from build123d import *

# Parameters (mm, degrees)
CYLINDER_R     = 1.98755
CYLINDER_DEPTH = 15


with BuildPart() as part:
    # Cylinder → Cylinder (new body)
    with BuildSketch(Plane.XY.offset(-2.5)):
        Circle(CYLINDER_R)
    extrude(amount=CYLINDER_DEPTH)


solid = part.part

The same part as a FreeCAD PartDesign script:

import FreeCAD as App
import Part
import Sketcher

doc = App.newDocument("Part")
params = doc.addObject("Spreadsheet::Sheet", "Params")
for row, (alias, value) in enumerate([
    ("pad1_length", "15 mm"),
], start=1):
    params.set(f"A{row}", alias)
    params.set(f"B{row}", "=" + value)
    params.setAlias(f"B{row}", alias)

body = doc.addObject("PartDesign::Body", "Body")

sketch1 = doc.addObject("Sketcher::SketchObject", "Sketch")
body.addObject(sketch1)
sketch1.AttachmentSupport = (doc.XY_Plane, [""])
sketch1.MapMode = "FlatFace"
sketch1.AttachmentOffset = App.Placement(App.Vector(0, 0, -2.5), App.Rotation())
sketch1.addGeometry(Part.Circle(App.Vector(0, 0, 0), App.Vector(0, 0, 1), 2), False)
sketch1.addConstraint(Sketcher.Constraint("Coincident", 0, 3, -1, 1))
sketch1.addConstraint(Sketcher.Constraint("Diameter", 0, 3.9751))
pad1 = doc.addObject("PartDesign::Pad", "Pad")
body.addObject(pad1)
pad1.Profile = sketch1
pad1.setExpression("Length", "Params.pad1_length")

doc.recompute()
